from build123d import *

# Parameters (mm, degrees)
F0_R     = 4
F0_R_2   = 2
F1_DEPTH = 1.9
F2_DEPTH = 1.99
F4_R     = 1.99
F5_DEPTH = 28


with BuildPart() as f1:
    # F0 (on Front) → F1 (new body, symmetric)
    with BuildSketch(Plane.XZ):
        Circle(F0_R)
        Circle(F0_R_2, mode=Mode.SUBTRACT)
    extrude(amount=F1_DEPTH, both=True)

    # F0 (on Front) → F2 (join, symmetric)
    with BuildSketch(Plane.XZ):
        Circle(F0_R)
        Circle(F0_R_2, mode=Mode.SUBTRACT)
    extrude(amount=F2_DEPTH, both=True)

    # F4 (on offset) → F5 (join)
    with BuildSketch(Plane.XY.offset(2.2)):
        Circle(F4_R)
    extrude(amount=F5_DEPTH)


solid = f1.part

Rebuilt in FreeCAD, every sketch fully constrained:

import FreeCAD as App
import Part
import Sketcher
Q = App.Units.Quantity

doc = App.newDocument("Part")
body = doc.addObject("PartDesign::Body", "Body")

# Sketch on XZ plane
sketch1 = body.newObject("Sketcher::SketchObject", "Sketch")
sketch1.AttachmentSupport = (doc.getObject("XZ_Plane"), [""])
sketch1.MapMode = "FlatFace"
sketch1.addGeometry([
    Part.Circle(App.Vector(0, 0, 0), App.Vector(0, 0, 1), 4),
    Part.Circle(App.Vector(0, 0, 0), App.Vector(0, 0, 1), 2),
], False)
sketch1.addConstraint([
    Sketcher.Constraint("Coincident", 0, 3, -1, 1),
    Sketcher.Constraint("Coincident", 1, 3, -1, 1),
    Sketcher.Constraint("Diameter", 0, Q("8 mm")),
    Sketcher.Constraint("Diameter", 1, Q("4 mm")),
])
pad1 = body.newObject("PartDesign::Pad", "Pad")
pad1.Profile = sketch1
pad1.Length = 3.8
pad1.Midplane = True

# Sketch on XZ plane
sketch2 = body.newObject("Sketcher::SketchObject", "Sketch001")
sketch2.AttachmentSupport = (doc.getObject("XZ_Plane"), [""])
sketch2.MapMode = "FlatFace"
sketch2.addGeometry([
    Part.Circle(App.Vector(0, 0, 0), App.Vector(0, 0, 1), 4),
    Part.Circle(App.Vector(0, 0, 0), App.Vector(0, 0, 1), 2),
], False)
sketch2.addConstraint([
    Sketcher.Constraint("Coincident", 0, 3, -1, 1),
    Sketcher.Constraint("Coincident", 1, 3, -1, 1),
    Sketcher.Constraint("Diameter", 0, Q("8 mm")),
    Sketcher.Constraint("Diameter", 1, Q("4 mm")),
])
pad2 = body.newObject("PartDesign::Pad", "Pad001")
pad2.Profile = sketch2
pad2.Length = 3.98
pad2.Midplane = True

# Sketch on XY plane
sketch3 = body.newObject("Sketcher::SketchObject", "Sketch002")
sketch3.AttachmentSupport = (doc.getObject("XY_Plane"), [""])
sketch3.MapMode = "FlatFace"
sketch3.AttachmentOffset = App.Placement(App.Vector(0, 0, 2.2), App.Rotation())
sketch3.addGeometry(Part.Circle(App.Vector(0, 0, 0), App.Vector(0, 0, 1), 2), False)
sketch3.addConstraint([
    Sketcher.Constraint("Coincident", 0, 3, -1, 1),
    Sketcher.Constraint("Diameter", 0, Q("3.98 mm")),
])
pad3 = body.newObject("PartDesign::Pad", "Pad002")
pad3.Profile = sketch3
pad3.Length = 28

doc.recompute()
